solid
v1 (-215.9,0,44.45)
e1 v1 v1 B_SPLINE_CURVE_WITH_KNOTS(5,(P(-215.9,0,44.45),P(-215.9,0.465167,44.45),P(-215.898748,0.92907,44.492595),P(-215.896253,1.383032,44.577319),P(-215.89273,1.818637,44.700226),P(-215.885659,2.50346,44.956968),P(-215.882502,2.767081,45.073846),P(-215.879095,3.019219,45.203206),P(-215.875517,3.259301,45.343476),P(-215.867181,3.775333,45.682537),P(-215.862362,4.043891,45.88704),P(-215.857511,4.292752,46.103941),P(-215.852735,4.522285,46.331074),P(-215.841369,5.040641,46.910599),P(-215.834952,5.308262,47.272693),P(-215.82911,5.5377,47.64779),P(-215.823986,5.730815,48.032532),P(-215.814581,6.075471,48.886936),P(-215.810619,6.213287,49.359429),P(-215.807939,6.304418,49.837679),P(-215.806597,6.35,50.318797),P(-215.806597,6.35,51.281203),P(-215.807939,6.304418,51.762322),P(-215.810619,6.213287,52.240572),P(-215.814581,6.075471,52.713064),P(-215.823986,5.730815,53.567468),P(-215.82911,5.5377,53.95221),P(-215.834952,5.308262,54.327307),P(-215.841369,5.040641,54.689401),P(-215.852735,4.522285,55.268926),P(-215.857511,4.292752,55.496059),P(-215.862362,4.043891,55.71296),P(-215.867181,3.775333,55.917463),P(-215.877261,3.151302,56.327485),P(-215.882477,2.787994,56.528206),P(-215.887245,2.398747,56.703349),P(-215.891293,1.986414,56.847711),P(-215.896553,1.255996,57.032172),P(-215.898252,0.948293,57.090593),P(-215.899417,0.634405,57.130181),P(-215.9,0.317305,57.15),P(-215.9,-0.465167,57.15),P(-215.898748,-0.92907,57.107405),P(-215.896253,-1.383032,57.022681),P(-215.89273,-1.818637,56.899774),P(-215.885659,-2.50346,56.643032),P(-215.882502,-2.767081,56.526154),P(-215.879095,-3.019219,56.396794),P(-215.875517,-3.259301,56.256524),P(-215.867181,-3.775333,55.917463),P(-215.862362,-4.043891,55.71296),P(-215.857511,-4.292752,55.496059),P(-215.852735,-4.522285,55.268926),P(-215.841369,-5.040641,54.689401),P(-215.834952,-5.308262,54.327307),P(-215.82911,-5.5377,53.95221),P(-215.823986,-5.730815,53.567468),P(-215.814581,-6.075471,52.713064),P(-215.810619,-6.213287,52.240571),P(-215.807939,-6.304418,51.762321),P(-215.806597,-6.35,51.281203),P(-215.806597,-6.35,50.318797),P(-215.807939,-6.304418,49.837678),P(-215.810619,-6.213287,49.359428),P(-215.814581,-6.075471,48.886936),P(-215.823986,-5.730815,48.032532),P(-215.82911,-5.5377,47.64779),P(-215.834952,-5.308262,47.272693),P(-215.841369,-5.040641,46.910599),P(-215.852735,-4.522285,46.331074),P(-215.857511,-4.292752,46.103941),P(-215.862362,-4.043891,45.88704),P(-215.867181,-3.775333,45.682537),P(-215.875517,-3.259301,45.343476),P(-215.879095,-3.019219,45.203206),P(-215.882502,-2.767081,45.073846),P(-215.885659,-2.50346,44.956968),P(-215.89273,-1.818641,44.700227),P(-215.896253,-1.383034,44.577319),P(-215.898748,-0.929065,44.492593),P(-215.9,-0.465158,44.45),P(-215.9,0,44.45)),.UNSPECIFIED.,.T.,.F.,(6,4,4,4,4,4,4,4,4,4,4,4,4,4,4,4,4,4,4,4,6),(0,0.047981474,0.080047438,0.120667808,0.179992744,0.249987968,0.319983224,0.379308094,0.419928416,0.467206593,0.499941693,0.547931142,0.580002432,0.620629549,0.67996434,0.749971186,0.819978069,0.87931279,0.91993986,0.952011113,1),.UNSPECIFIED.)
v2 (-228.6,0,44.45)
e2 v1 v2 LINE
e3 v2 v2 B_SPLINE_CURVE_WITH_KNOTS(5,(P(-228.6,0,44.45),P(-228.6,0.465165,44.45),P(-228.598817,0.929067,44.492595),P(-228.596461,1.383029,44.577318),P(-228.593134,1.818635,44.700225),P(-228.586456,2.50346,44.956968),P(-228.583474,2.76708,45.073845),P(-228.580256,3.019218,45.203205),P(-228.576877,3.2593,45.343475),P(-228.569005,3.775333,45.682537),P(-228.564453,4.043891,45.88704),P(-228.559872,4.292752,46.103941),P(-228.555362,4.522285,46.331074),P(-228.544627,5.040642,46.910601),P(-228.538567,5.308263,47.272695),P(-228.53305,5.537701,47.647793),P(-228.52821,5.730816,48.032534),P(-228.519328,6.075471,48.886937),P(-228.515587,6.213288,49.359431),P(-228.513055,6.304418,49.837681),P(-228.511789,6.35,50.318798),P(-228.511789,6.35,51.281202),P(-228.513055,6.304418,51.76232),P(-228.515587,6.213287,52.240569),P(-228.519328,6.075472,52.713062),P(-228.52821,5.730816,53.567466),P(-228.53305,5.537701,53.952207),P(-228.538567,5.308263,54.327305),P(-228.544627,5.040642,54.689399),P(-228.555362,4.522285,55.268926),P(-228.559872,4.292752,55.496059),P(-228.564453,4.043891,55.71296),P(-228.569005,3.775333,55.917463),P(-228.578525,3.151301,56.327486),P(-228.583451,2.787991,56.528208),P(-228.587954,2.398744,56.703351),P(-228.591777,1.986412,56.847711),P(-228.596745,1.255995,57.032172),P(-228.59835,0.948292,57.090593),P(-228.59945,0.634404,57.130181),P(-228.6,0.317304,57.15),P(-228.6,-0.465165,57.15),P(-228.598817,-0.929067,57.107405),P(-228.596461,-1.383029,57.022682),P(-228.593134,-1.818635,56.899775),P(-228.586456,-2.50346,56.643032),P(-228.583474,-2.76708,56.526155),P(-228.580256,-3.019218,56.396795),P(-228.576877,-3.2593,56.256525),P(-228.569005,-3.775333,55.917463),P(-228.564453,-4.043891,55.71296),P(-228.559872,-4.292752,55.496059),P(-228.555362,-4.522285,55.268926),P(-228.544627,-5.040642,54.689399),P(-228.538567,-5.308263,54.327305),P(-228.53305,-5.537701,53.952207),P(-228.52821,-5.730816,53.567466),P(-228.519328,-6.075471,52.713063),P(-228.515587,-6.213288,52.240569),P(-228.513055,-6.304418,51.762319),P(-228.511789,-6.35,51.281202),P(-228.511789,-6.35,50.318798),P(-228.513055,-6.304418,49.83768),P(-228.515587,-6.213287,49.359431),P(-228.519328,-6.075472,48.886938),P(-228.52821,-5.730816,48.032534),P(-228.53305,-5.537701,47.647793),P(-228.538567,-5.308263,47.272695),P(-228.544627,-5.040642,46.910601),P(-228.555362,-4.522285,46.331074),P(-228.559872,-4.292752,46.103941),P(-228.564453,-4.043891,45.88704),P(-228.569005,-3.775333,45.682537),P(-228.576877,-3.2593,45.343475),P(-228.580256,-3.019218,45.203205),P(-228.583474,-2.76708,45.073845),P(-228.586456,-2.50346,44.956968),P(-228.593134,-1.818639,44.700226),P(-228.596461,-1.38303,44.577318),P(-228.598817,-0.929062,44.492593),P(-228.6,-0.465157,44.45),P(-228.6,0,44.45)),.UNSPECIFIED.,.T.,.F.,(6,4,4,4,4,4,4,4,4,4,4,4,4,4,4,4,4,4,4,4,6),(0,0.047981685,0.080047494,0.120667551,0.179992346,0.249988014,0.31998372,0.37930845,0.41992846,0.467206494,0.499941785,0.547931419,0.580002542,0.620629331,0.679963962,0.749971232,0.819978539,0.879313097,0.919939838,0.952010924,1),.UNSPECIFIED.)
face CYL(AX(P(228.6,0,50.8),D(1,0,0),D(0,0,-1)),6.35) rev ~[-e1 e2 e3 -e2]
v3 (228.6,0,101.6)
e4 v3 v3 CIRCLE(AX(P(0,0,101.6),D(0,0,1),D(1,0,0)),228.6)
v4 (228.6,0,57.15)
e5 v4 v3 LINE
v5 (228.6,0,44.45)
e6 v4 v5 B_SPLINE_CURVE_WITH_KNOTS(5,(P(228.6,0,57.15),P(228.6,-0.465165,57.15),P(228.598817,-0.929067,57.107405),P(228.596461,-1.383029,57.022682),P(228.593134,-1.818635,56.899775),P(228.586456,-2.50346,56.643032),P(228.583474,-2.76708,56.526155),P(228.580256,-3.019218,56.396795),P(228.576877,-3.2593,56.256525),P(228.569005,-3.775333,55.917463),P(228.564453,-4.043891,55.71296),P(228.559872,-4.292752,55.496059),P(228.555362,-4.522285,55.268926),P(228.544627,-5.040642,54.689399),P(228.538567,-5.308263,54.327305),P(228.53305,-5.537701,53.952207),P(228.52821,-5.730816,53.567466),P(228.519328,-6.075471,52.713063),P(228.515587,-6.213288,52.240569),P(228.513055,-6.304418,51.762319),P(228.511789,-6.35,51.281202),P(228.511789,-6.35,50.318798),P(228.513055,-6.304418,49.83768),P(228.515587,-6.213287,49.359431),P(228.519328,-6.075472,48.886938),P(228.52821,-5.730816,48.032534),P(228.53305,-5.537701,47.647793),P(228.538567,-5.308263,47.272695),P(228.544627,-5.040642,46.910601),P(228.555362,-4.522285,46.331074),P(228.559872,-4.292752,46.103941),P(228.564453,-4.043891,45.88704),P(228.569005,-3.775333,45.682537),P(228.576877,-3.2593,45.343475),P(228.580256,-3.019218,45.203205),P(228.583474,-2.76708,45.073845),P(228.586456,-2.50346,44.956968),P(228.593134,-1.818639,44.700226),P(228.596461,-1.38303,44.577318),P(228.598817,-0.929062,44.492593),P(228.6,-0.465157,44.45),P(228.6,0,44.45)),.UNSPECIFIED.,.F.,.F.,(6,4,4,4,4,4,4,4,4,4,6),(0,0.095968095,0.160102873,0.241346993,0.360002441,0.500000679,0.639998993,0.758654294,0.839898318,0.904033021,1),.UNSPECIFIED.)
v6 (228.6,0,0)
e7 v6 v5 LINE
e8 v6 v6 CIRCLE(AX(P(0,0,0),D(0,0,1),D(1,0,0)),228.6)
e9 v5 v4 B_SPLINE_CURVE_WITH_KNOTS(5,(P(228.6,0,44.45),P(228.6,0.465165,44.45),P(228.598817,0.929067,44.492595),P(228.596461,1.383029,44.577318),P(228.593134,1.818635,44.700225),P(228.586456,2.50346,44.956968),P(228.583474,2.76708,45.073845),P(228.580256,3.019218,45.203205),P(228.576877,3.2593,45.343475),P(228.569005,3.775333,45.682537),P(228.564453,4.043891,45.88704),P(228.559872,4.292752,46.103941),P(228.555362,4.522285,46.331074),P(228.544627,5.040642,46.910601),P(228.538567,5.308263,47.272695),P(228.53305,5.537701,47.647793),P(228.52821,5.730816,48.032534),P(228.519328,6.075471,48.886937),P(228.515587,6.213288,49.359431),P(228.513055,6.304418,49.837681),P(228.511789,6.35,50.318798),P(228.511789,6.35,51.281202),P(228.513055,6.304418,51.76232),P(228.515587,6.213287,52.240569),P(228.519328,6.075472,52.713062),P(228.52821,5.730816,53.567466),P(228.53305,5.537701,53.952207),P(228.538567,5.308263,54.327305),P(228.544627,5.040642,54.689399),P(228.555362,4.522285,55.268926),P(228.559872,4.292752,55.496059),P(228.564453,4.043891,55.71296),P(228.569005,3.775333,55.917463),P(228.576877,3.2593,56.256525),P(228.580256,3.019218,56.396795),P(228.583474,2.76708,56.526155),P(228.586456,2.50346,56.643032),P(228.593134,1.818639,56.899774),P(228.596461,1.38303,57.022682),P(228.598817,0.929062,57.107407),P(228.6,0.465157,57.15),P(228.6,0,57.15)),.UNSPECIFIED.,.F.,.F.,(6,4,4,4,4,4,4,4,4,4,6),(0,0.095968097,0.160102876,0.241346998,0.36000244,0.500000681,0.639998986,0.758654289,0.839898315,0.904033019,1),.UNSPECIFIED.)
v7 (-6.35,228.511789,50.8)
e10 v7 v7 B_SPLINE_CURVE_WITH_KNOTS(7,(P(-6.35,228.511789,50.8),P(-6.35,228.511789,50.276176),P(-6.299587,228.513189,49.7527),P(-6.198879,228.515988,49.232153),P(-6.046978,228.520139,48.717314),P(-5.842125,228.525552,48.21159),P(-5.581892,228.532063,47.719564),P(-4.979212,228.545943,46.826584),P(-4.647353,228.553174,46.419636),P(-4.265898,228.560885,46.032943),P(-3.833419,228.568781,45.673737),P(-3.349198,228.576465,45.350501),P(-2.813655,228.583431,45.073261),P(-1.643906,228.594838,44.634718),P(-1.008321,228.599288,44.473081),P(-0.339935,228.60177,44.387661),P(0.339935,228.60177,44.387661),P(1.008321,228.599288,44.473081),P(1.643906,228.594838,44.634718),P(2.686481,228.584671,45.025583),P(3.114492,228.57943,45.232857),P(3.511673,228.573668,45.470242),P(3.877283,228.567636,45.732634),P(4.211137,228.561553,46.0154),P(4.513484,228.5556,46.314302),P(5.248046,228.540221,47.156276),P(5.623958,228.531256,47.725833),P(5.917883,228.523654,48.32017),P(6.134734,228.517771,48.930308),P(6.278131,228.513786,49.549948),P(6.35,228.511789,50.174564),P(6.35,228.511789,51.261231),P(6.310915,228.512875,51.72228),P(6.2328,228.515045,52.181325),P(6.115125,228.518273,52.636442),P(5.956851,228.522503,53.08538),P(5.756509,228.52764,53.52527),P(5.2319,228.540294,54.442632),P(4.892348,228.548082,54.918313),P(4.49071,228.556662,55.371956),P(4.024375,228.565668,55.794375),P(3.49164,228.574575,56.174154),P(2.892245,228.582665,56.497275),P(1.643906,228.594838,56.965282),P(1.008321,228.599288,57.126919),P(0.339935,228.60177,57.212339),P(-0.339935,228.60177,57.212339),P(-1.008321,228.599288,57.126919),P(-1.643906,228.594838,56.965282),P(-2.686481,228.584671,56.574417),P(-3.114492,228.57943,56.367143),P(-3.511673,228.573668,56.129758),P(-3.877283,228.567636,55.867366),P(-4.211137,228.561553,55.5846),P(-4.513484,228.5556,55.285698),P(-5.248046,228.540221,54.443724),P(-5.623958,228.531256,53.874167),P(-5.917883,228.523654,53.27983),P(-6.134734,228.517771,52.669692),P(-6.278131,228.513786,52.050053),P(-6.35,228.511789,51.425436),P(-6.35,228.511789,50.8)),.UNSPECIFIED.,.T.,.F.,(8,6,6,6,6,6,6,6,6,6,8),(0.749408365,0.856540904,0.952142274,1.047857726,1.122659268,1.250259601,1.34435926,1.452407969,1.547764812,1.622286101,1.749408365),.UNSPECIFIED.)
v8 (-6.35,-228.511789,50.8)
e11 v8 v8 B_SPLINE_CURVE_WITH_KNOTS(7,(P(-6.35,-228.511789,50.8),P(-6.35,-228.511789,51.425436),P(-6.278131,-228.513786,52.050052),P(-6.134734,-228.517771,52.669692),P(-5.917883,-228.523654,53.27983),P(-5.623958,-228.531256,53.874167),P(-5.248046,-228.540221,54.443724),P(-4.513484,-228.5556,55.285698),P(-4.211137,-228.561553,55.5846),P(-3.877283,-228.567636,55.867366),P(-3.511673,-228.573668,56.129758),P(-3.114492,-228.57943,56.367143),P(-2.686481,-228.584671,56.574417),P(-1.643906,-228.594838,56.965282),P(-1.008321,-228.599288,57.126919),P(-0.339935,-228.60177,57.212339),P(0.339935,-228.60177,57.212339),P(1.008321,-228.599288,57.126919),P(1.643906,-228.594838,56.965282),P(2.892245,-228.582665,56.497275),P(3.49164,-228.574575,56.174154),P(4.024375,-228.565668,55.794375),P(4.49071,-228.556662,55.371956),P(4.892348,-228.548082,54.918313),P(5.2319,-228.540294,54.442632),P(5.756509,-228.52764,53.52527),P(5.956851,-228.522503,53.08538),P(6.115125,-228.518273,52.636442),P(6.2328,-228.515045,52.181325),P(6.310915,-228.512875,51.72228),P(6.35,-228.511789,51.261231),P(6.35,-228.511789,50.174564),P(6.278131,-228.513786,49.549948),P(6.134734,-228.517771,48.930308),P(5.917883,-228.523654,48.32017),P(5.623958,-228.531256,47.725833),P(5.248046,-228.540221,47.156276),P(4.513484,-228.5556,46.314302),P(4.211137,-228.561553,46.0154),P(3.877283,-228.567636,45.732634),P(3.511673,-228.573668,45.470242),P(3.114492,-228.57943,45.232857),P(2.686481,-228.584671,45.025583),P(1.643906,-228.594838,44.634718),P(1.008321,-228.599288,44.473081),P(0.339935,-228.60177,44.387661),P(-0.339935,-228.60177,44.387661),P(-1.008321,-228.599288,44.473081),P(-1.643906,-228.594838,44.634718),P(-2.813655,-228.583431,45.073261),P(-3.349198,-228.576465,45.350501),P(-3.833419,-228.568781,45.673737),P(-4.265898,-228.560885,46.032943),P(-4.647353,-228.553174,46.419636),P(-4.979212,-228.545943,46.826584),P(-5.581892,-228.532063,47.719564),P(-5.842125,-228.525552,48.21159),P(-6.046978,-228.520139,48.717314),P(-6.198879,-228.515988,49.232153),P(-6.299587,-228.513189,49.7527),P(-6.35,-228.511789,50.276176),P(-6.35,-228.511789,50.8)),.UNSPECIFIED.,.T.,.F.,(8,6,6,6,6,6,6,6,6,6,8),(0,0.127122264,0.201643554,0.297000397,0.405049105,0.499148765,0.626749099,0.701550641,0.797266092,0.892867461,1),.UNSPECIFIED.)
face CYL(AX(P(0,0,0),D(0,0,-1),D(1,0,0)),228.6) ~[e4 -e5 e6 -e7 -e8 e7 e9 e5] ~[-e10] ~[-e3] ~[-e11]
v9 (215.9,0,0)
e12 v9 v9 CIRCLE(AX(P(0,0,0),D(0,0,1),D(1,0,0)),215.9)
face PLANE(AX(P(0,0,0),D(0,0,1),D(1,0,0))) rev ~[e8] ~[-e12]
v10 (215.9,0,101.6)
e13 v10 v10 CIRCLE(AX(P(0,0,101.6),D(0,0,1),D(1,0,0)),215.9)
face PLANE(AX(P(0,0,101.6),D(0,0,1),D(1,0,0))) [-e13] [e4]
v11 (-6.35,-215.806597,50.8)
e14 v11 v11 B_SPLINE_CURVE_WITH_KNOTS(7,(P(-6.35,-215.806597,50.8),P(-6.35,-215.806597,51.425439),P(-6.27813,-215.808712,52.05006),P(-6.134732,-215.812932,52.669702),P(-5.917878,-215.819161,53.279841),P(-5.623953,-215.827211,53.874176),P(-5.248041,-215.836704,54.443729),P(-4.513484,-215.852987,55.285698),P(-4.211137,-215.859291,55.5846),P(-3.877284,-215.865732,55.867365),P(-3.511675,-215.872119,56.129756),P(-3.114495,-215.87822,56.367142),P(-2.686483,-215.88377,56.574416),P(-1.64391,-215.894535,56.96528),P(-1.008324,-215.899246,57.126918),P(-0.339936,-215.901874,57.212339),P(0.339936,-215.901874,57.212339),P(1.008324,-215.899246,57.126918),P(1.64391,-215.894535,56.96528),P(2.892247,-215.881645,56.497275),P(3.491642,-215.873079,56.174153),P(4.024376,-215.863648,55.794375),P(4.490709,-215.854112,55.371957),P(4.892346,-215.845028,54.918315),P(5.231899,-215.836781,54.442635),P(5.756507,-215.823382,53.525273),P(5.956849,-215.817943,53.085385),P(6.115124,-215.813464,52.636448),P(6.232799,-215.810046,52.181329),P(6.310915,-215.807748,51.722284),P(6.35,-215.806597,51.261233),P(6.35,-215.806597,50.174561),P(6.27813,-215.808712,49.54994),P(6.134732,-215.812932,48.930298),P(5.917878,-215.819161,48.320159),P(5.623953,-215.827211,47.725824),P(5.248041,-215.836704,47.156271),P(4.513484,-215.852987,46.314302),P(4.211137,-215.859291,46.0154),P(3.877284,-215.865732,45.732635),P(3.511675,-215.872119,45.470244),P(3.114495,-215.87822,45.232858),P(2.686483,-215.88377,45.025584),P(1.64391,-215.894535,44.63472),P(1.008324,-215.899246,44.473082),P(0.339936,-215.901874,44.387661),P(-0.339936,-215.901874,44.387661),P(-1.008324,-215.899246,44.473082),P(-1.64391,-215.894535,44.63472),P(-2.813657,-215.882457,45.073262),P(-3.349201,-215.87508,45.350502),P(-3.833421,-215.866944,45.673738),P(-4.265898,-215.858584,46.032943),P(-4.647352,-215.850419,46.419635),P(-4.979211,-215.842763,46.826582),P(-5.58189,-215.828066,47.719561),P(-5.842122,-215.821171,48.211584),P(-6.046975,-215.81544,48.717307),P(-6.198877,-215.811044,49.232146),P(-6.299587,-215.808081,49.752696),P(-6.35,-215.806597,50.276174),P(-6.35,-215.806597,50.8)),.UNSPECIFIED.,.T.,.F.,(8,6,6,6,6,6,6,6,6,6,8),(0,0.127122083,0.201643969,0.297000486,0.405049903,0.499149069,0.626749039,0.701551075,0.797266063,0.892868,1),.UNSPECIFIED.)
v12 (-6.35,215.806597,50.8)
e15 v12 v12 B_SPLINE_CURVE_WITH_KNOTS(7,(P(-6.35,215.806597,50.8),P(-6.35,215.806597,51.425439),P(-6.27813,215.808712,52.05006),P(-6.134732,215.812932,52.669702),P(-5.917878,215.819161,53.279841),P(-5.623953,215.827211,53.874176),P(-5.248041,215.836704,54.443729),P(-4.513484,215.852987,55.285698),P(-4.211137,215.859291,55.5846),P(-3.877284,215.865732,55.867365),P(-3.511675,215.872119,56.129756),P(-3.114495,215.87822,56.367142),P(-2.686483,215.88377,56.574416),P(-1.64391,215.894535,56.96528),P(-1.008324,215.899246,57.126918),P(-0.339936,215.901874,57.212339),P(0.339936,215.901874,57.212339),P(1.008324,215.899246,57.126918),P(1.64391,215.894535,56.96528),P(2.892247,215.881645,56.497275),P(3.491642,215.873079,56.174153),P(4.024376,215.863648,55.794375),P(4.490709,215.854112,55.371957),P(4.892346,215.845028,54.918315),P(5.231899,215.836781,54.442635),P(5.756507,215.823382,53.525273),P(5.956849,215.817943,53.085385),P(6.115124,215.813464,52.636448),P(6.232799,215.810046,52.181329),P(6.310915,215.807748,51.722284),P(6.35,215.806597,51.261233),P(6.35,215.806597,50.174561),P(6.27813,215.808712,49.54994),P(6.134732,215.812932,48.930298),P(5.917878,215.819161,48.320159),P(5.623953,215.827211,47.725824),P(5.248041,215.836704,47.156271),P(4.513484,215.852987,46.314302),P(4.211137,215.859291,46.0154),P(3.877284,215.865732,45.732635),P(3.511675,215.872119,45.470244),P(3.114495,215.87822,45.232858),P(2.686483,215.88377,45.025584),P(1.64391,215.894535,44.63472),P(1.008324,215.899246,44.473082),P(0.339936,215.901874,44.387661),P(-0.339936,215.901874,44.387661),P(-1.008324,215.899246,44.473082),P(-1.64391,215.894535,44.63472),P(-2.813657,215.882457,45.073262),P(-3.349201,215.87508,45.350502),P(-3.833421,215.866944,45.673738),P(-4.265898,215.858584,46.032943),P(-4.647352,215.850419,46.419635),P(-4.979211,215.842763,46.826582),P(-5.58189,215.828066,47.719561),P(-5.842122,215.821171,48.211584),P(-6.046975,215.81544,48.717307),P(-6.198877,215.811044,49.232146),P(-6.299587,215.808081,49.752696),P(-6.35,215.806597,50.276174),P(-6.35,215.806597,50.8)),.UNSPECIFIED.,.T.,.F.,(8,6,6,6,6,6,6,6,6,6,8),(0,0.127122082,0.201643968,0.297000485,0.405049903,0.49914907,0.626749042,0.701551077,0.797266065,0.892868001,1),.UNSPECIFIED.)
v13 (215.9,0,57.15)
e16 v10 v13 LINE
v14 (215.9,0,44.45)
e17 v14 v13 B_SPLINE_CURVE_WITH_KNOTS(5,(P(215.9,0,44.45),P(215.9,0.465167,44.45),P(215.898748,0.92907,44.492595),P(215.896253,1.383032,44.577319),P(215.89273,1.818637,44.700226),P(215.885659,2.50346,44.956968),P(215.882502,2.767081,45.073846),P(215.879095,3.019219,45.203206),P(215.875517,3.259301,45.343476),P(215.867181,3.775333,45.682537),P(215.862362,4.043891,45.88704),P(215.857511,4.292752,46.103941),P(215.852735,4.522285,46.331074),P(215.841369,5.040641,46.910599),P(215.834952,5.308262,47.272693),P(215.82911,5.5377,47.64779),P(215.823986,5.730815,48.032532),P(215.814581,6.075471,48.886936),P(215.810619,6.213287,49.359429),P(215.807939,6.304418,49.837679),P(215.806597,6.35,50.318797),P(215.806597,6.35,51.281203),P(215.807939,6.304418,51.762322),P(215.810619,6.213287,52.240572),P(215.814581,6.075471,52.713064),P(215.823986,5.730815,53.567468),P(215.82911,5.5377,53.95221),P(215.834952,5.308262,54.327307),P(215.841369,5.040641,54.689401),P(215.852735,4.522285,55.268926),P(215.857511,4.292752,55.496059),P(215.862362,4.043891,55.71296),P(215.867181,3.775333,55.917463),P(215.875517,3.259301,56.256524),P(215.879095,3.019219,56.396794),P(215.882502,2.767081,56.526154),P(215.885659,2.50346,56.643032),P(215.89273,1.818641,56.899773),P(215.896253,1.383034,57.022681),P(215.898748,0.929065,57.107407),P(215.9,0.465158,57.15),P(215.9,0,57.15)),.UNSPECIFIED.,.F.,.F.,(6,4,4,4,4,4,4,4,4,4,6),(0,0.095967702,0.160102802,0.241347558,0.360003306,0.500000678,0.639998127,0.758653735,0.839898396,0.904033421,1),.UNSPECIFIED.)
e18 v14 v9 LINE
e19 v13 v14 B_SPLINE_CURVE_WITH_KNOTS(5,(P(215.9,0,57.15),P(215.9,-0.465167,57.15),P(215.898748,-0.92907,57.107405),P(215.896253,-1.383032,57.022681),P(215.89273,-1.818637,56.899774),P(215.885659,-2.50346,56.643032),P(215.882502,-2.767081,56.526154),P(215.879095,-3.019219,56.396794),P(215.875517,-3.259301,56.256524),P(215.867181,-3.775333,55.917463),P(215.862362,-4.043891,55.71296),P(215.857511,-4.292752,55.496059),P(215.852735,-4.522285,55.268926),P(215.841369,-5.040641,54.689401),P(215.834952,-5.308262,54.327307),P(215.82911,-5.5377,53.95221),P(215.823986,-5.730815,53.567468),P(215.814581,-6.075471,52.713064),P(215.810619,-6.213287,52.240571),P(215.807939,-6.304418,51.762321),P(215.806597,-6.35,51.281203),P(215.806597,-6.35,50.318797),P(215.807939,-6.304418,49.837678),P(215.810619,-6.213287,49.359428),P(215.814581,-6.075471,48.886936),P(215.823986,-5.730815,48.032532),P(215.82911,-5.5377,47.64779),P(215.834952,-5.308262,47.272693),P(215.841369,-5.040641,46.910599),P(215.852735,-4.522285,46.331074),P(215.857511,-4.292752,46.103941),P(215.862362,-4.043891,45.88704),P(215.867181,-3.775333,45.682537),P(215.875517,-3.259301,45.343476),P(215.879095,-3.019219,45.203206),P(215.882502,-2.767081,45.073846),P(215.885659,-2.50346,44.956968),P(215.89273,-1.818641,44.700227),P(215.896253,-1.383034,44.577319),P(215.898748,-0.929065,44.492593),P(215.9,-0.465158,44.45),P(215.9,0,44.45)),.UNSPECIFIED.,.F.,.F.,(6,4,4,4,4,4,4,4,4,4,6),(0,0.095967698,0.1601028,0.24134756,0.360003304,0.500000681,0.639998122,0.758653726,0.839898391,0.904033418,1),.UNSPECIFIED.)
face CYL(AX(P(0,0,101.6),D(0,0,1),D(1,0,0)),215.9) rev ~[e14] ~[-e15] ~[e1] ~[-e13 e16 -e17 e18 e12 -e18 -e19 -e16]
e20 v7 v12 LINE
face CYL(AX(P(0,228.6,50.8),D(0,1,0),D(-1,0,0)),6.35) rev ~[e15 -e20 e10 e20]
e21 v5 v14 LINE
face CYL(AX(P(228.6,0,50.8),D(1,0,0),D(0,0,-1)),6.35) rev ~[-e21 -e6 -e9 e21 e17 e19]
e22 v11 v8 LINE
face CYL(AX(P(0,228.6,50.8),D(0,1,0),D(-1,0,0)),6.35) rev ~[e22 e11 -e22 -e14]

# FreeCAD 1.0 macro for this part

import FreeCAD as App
import Part
import Sketcher
Q = App.Units.Quantity

doc = App.newDocument("Part")
body = doc.addObject("PartDesign::Body", "Body")

# Sketch on XY plane
sketch1 = body.newObject("Sketcher::SketchObject", "Sketch")
sketch1.AttachmentSupport = (doc.getObject("XY_Plane"), [""])
sketch1.MapMode = "FlatFace"
sketch1.addGeometry(Part.Circle(App.Vector(0, 0, 0), App.Vector(0, 0, 1), 228.6), False)
sketch1.addConstraint(Sketcher.Constraint("Coincident", 0, 3, -1, 1))
sketch1.addConstraint(Sketcher.Constraint("Diameter", 0, Q("18 in")))
pad1 = body.newObject("PartDesign::Pad", "Pad")
pad1.Profile = sketch1
pad1.Length = Q("4 in")

# Sketch on XY plane
sketch2 = body.newObject("Sketcher::SketchObject", "Sketch001")
sketch2.AttachmentSupport = (doc.getObject("XY_Plane"), [""])
sketch2.MapMode = "FlatFace"
sketch2.AttachmentOffset = App.Placement(App.Vector(0, 0, 4 * 25.4), App.Rotation())
sketch2.addGeometry(Part.Circle(App.Vector(0, 0, 0), App.Vector(0, 0, 1), 215.9), False)
sketch2.addConstraint(Sketcher.Constraint("Coincident", 0, 3, -1, 1))
sketch2.addConstraint(Sketcher.Constraint("Diameter", 0, Q("17 in")))
pocket1 = body.newObject("PartDesign::Pocket", "Pocket")
pocket1.Profile = sketch2
pocket1.Type = "ThroughAll"

# Sketch on XZ plane
sketch3 = body.newObject("Sketcher::SketchObject", "Sketch002")
sketch3.AttachmentSupport = (doc.getObject("XZ_Plane"), [""])
sketch3.MapMode = "FlatFace"
sketch3.AttachmentOffset = App.Placement(App.Vector(0, 0, -9 * 25.4), App.Rotation())
sketch3.addGeometry(Part.Circle(App.Vector(0, 50.8, 0), App.Vector(0, 0, 1), 6.35), False)
sketch3.addConstraint(Sketcher.Constraint("PointOnObject", 0, 3, -2))
sketch3.addConstraint(Sketcher.Constraint("Diameter", 0, Q("0.5 in")))
sketch3.addConstraint(Sketcher.Constraint("DistanceY", -1, 1, 0, 3, Q("2 in")))
pocket2 = body.newObject("PartDesign::Pocket", "Pocket001")
pocket2.Profile = sketch3
pocket2.Type = "ThroughAll"
pocket2.Reversed = True

# Sketch on YZ plane
sketch4 = body.newObject("Sketcher::SketchObject", "Sketch003")
sketch4.AttachmentSupport = (doc.getObject("YZ_Plane"), [""])
sketch4.MapMode = "FlatFace"
sketch4.AttachmentOffset = App.Placement(App.Vector(0, 0, 9 * 25.4), App.Rotation())
sketch4.addGeometry(Part.Circle(App.Vector(0, 50.8, 0), App.Vector(0, 0, 1), 6.35), False)
sketch4.addConstraint(Sketcher.Constraint("PointOnObject", 0, 3, -2))
sketch4.addConstraint(Sketcher.Constraint("Diameter", 0, Q("0.5 in")))
sketch4.addConstraint(Sketcher.Constraint("DistanceY", -1, 1, 0, 3, Q("2 in")))
pocket3 = body.newObject("PartDesign::Pocket", "Pocket002")
pocket3.Profile = sketch4
pocket3.Type = "ThroughAll"

doc.recompute()
